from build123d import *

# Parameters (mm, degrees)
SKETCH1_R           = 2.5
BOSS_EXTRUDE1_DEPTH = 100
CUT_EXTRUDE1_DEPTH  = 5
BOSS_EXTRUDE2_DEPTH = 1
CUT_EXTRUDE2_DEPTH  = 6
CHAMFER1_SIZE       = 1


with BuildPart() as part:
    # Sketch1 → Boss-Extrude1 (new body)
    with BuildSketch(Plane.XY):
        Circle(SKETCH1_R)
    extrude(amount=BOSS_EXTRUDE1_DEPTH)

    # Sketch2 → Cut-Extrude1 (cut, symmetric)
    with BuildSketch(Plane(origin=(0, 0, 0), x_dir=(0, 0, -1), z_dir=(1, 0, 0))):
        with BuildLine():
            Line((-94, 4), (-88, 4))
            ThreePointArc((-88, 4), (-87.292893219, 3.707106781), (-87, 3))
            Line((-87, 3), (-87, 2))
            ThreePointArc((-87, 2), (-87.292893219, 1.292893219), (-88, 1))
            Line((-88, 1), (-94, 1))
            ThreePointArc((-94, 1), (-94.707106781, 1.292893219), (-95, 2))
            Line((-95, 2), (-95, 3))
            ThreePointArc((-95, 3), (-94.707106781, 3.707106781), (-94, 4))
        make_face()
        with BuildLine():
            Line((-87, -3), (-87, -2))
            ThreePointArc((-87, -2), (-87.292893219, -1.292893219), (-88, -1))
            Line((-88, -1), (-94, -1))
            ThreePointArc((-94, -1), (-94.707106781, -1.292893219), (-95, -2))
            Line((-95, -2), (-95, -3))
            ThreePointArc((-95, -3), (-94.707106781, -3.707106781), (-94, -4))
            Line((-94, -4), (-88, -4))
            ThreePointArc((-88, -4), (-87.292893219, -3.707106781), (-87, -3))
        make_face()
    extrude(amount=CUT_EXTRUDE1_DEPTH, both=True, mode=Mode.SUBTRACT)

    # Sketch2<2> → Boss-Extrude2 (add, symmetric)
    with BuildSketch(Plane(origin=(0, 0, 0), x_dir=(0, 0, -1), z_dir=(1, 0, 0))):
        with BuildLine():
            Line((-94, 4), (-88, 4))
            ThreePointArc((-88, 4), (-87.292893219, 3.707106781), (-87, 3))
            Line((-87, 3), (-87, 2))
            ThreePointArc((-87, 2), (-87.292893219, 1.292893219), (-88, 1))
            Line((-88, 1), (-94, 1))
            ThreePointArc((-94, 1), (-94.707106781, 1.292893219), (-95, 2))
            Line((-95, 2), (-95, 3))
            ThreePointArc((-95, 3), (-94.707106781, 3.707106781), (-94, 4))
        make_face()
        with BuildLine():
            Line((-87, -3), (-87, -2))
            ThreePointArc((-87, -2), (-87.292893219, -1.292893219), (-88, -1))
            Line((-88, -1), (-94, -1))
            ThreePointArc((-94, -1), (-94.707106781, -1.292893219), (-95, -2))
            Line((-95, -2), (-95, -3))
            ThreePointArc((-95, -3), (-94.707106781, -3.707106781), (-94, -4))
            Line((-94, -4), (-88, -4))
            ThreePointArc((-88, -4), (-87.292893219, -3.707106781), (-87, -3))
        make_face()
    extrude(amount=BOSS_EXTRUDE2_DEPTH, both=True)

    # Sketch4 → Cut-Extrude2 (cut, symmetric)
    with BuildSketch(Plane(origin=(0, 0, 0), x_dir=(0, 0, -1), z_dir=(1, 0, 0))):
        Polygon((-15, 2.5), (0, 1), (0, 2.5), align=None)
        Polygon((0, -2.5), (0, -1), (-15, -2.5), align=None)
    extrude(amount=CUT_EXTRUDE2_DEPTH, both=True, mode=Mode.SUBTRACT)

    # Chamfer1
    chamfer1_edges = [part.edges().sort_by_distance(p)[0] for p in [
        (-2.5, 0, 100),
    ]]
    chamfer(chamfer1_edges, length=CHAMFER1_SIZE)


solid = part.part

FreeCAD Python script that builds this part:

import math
import FreeCAD as App
import Part
import Sketcher
from FreeCAD import Vector
Q = App.Units.Quantity


def edges_at(feature, points):
    """Names of the edges that pass closest to the given points."""
    edges = feature.Shape.Edges
    near = lambda p: min(range(len(edges)), key=lambda i: edges[i].distToShape(Part.Vertex(*p))[0])
    return sorted({f"Edge{near(p) + 1}" for p in points})


def add_polygon(sketch, points):
    """Adds a closed chain of lines whose ends are joined by coincident constraints."""
    first, n = sketch.GeometryCount, len(points)
    for a, b in zip(points, points[1:] + points[:1]):
        sketch.addGeometry(Part.LineSegment(App.Vector(*a, 0), App.Vector(*b, 0)), False)
    for i in range(n):
        sketch.addConstraint(Sketcher.Constraint("Coincident", first + i, 2, first + (i + 1) % n, 1))

doc = App.newDocument("Part")
body = doc.addObject("PartDesign::Body", "Body")

# Sketch on XY plane
sketch1 = body.newObject("Sketcher::SketchObject", "Sketch")
sketch1.AttachmentSupport = (doc.getObject("XY_Plane"), [""])
sketch1.MapMode = "FlatFace"
sketch1.addGeometry(Part.Circle(Vector(0, 0, 0), Vector(0, 0, 1), 2.5), False)
sketch1.addConstraint([
    Sketcher.Constraint("Coincident", 0, 3, -1, 1),
    Sketcher.Constraint("Diameter", 0, Q("5 mm")),
])
pad1 = body.newObject("PartDesign::Pad", "Pad")
pad1.Profile = sketch1
pad1.Length = 100

# Sketch on YZ plane
sketch2 = body.newObject("Sketcher::SketchObject", "Sketch001")
sketch2.AttachmentSupport = (doc.getObject("YZ_Plane"), [""])
sketch2.MapMode = "FlatFace"
sketch2.addGeometry([
    Part.LineSegment(Vector(4, 88, 0), Vector(4, 94, 0)),  # 0
    Part.ArcOfCircle(Part.Circle(Vector(3, 94, 0), Vector(0, 0, 1), 1), math.radians(0), math.radians(90)),  # 1
    Part.LineSegment(Vector(3, 95, 0), Vector(2, 95, 0)),  # 2
    Part.ArcOfCircle(Part.Circle(Vector(2, 94, 0), Vector(0, 0, 1), 1), math.radians(90), math.radians(180)),  # 3
    Part.LineSegment(Vector(1, 94, 0), Vector(1, 88, 0)),  # 4
    Part.ArcOfCircle(Part.Circle(Vector(2, 88, 0), Vector(0, 0, 1), 1), math.radians(-180), math.radians(-90)),  # 5
    Part.LineSegment(Vector(2, 87, 0), Vector(3, 87, 0)),  # 6
    Part.ArcOfCircle(Part.Circle(Vector(3, 88, 0), Vector(0, 0, 1), 1), math.radians(-90), math.radians(0)),  # 7
    Part.LineSegment(Vector(-3, 87, 0), Vector(-2, 87, 0)),  # 8
    Part.ArcOfCircle(Part.Circle(Vector(-2, 88, 0), Vector(0, 0, 1), 1), math.radians(-90), math.radians(0)),  # 9
    Part.LineSegment(Vector(-1, 88, 0), Vector(-1, 94, 0)),  # 10
    Part.ArcOfCircle(Part.Circle(Vector(-2, 94, 0), Vector(0, 0, 1), 1), math.radians(0), math.radians(90)),  # 11
    Part.LineSegment(Vector(-2, 95, 0), Vector(-3, 95, 0)),  # 12
    Part.ArcOfCircle(Part.Circle(Vector(-3, 94, 0), Vector(0, 0, 1), 1), math.radians(90), math.radians(180)),  # 13
    Part.LineSegment(Vector(-4, 94, 0), Vector(-4, 88, 0)),  # 14
    Part.ArcOfCircle(Part.Circle(Vector(-3, 88, 0), Vector(0, 0, 1), 1), math.radians(-180), math.radians(-90)),  # 15
], False)
sketch2.addConstraint([
    Sketcher.Constraint("Tangent", 0, 2, 1, 1),
    Sketcher.Constraint("Tangent", 1, 2, 2, 1),
    Sketcher.Constraint("Tangent", 2, 2, 3, 1),
    Sketcher.Constraint("Tangent", 3, 2, 4, 1),
    Sketcher.Constraint("Tangent", 4, 2, 5, 1),
    Sketcher.Constraint("Tangent", 5, 2, 6, 1),
    Sketcher.Constraint("Tangent", 6, 2, 7, 1),
    Sketcher.Constraint("Tangent", 7, 2, 0, 1),
    Sketcher.Constraint("Tangent", 8, 2, 9, 1),
    Sketcher.Constraint("Tangent", 9, 2, 10, 1),
    Sketcher.Constraint("Tangent", 10, 2, 11, 1),
    Sketcher.Constraint("Tangent", 11, 2, 12, 1),
    Sketcher.Constraint("Tangent", 12, 2, 13, 1),
    Sketcher.Constraint("Tangent", 13, 2, 14, 1),
    Sketcher.Constraint("Tangent", 14, 2, 15, 1),
    Sketcher.Constraint("Tangent", 15, 2, 8, 1),
    Sketcher.Constraint("Vertical", 0),
    Sketcher.Constraint("Horizontal", 2),
    Sketcher.Constraint("Vertical", 4),
    Sketcher.Constraint("Horizontal", 6),
    Sketcher.Constraint("Horizontal", 8),
    Sketcher.Constraint("Vertical", 10),
    Sketcher.Constraint("Horizontal", 12),
    Sketcher.Constraint("Vertical", 14),
    Sketcher.Constraint("Equal", 1, 3),
    Sketcher.Constraint("Equal", 3, 5),
    Sketcher.Constraint("Equal", 5, 7),
    Sketcher.Constraint("Equal", 7, 9),
    Sketcher.Constraint("Equal", 9, 11),
    Sketcher.Constraint("Equal", 11, 13),
    Sketcher.Constraint("Equal", 13, 15),
    Sketcher.Constraint("Symmetric", 5, 3, 9, 3, -2),
    Sketcher.Constraint("Symmetric", 1, 3, 13, 3, -2),
    Sketcher.Constraint("Radius", 1, Q("1 mm")),
    Sketcher.Constraint("DistanceX", 2, 2, 2, 1, Q("1 mm")),
    Sketcher.Constraint("DistanceY", 0, 1, 0, 2, Q("6 mm")),
    Sketcher.Constraint("DistanceX", -1, 1, 1, 3, Q("3 mm")),
    Sketcher.Constraint("DistanceY", -1, 1, 1, 3, Q("94 mm")),
])
pocket1 = body.newObject("PartDesign::Pocket", "Pocket")
pocket1.Profile = sketch2
pocket1.Length = 10
pocket1.Midplane = True

# Sketch on YZ plane
sketch3 = body.newObject("Sketcher::SketchObject", "Sketch002")
sketch3.AttachmentSupport = (doc.getObject("YZ_Plane"), [""])
sketch3.MapMode = "FlatFace"
sketch3.addGeometry([
    Part.LineSegment(Vector(4, 88, 0), Vector(4, 94, 0)),  # 0
    Part.ArcOfCircle(Part.Circle(Vector(3, 94, 0), Vector(0, 0, 1), 1), math.radians(0), math.radians(90)),  # 1
    Part.LineSegment(Vector(3, 95, 0), Vector(2, 95, 0)),  # 2
    Part.ArcOfCircle(Part.Circle(Vector(2, 94, 0), Vector(0, 0, 1), 1), math.radians(90), math.radians(180)),  # 3
    Part.LineSegment(Vector(1, 94, 0), Vector(1, 88, 0)),  # 4
    Part.ArcOfCircle(Part.Circle(Vector(2, 88, 0), Vector(0, 0, 1), 1), math.radians(-180), math.radians(-90)),  # 5
    Part.LineSegment(Vector(2, 87, 0), Vector(3, 87, 0)),  # 6
    Part.ArcOfCircle(Part.Circle(Vector(3, 88, 0), Vector(0, 0, 1), 1), math.radians(-90), math.radians(0)),  # 7
    Part.LineSegment(Vector(-3, 87, 0), Vector(-2, 87, 0)),  # 8
    Part.ArcOfCircle(Part.Circle(Vector(-2, 88, 0), Vector(0, 0, 1), 1), math.radians(-90), math.radians(0)),  # 9
    Part.LineSegment(Vector(-1, 88, 0), Vector(-1, 94, 0)),  # 10
    Part.ArcOfCircle(Part.Circle(Vector(-2, 94, 0), Vector(0, 0, 1), 1), math.radians(0), math.radians(90)),  # 11
    Part.LineSegment(Vector(-2, 95, 0), Vector(-3, 95, 0)),  # 12
    Part.ArcOfCircle(Part.Circle(Vector(-3, 94, 0), Vector(0, 0, 1), 1), math.radians(90), math.radians(180)),  # 13
    Part.LineSegment(Vector(-4, 94, 0), Vector(-4, 88, 0)),  # 14
    Part.ArcOfCircle(Part.Circle(Vector(-3, 88, 0), Vector(0, 0, 1), 1), math.radians(-180), math.radians(-90)),  # 15
], False)
sketch3.addConstraint([
    Sketcher.Constraint("Tangent", 0, 2, 1, 1),
    Sketcher.Constraint("Tangent", 1, 2, 2, 1),
    Sketcher.Constraint("Tangent", 2, 2, 3, 1),
    Sketcher.Constraint("Tangent", 3, 2, 4, 1),
    Sketcher.Constraint("Tangent", 4, 2, 5, 1),
    Sketcher.Constraint("Tangent", 5, 2, 6, 1),
    Sketcher.Constraint("Tangent", 6, 2, 7, 1),
    Sketcher.Constraint("Tangent", 7, 2, 0, 1),
    Sketcher.Constraint("Tangent", 8, 2, 9, 1),
    Sketcher.Constraint("Tangent", 9, 2, 10, 1),
    Sketcher.Constraint("Tangent", 10, 2, 11, 1),
    Sketcher.Constraint("Tangent", 11, 2, 12, 1),
    Sketcher.Constraint("Tangent", 12, 2, 13, 1),
    Sketcher.Constraint("Tangent", 13, 2, 14, 1),
    Sketcher.Constraint("Tangent", 14, 2, 15, 1),
    Sketcher.Constraint("Tangent", 15, 2, 8, 1),
    Sketcher.Constraint("Vertical", 0),
    Sketcher.Constraint("Horizontal", 2),
    Sketcher.Constraint("Vertical", 4),
    Sketcher.Constraint("Horizontal", 6),
    Sketcher.Constraint("Horizontal", 8),
    Sketcher.Constraint("Vertical", 10),
    Sketcher.Constraint("Horizontal", 12),
    Sketcher.Constraint("Vertical", 14),
    Sketcher.Constraint("Equal", 1, 3),
    Sketcher.Constraint("Equal", 3, 5),
    Sketcher.Constraint("Equal", 5, 7),
    Sketcher.Constraint("Equal", 7, 9),
    Sketcher.Constraint("Equal", 9, 11),
    Sketcher.Constraint("Equal", 11, 13),
    Sketcher.Constraint("Equal", 13, 15),
    Sketcher.Constraint("Symmetric", 5, 3, 9, 3, -2),
    Sketcher.Constraint("Symmetric", 1, 3, 13, 3, -2),
    Sketcher.Constraint("Radius", 1, Q("1 mm")),
    Sketcher.Constraint("DistanceX", 2, 2, 2, 1, Q("1 mm")),
    Sketcher.Constraint("DistanceY", 0, 1, 0, 2, Q("6 mm")),
    Sketcher.Constraint("DistanceX", -1, 1, 1, 3, Q("3 mm")),
    Sketcher.Constraint("DistanceY", -1, 1, 1, 3, Q("94 mm")),
])
pad2 = body.newObject("PartDesign::Pad", "Pad001")
pad2.Profile = sketch3
pad2.Length = 2
pad2.Midplane = True

# Sketch on YZ plane
sketch4 = body.newObject("Sketcher::SketchObject", "Sketch003")
sketch4.AttachmentSupport = (doc.getObject("YZ_Plane"), [""])
sketch4.MapMode = "FlatFace"
add_polygon(sketch4, [(2.5, 15), (1, 0), (2.5, 0)])  # lines 0-2
add_polygon(sketch4, [(-2.5, 0), (-1, 0), (-2.5, 15)])  # lines 3-5
sketch4.addConstraint([
    Sketcher.Constraint("Horizontal", 1),
    Sketcher.Constraint("Vertical", 2),
    Sketcher.Constraint("Horizontal", 3),
    Sketcher.Constraint("Vertical", 5),
    Sketcher.Constraint("Symmetric", 0, 2, 3, 2, -1, 1),
    Sketcher.Constraint("Symmetric", 2, 2, 4, 2, -2),
    Sketcher.Constraint("PointOnObject", 0, 2, -1),
    Sketcher.Constraint("DistanceY", 2, 1, 2, 2, Q("15 mm")),
    Sketcher.Constraint("DistanceX", 1, 1, 1, 2, Q("1.5 mm")),
    Sketcher.Constraint("DistanceX", -1, 1, 0, 2, Q("1 mm")),
])
pocket2 = body.newObject("PartDesign::Pocket", "Pocket001")
pocket2.Profile = sketch4
pocket2.Length = 12
pocket2.Midplane = True
doc.recompute()

chamfer = body.newObject("PartDesign::Chamfer", "Chamfer")
chamfer.Base = (pocket2, edges_at(pocket2, [(-2.5, 0, 100)]))
chamfer.Size = 1

doc.recompute()
